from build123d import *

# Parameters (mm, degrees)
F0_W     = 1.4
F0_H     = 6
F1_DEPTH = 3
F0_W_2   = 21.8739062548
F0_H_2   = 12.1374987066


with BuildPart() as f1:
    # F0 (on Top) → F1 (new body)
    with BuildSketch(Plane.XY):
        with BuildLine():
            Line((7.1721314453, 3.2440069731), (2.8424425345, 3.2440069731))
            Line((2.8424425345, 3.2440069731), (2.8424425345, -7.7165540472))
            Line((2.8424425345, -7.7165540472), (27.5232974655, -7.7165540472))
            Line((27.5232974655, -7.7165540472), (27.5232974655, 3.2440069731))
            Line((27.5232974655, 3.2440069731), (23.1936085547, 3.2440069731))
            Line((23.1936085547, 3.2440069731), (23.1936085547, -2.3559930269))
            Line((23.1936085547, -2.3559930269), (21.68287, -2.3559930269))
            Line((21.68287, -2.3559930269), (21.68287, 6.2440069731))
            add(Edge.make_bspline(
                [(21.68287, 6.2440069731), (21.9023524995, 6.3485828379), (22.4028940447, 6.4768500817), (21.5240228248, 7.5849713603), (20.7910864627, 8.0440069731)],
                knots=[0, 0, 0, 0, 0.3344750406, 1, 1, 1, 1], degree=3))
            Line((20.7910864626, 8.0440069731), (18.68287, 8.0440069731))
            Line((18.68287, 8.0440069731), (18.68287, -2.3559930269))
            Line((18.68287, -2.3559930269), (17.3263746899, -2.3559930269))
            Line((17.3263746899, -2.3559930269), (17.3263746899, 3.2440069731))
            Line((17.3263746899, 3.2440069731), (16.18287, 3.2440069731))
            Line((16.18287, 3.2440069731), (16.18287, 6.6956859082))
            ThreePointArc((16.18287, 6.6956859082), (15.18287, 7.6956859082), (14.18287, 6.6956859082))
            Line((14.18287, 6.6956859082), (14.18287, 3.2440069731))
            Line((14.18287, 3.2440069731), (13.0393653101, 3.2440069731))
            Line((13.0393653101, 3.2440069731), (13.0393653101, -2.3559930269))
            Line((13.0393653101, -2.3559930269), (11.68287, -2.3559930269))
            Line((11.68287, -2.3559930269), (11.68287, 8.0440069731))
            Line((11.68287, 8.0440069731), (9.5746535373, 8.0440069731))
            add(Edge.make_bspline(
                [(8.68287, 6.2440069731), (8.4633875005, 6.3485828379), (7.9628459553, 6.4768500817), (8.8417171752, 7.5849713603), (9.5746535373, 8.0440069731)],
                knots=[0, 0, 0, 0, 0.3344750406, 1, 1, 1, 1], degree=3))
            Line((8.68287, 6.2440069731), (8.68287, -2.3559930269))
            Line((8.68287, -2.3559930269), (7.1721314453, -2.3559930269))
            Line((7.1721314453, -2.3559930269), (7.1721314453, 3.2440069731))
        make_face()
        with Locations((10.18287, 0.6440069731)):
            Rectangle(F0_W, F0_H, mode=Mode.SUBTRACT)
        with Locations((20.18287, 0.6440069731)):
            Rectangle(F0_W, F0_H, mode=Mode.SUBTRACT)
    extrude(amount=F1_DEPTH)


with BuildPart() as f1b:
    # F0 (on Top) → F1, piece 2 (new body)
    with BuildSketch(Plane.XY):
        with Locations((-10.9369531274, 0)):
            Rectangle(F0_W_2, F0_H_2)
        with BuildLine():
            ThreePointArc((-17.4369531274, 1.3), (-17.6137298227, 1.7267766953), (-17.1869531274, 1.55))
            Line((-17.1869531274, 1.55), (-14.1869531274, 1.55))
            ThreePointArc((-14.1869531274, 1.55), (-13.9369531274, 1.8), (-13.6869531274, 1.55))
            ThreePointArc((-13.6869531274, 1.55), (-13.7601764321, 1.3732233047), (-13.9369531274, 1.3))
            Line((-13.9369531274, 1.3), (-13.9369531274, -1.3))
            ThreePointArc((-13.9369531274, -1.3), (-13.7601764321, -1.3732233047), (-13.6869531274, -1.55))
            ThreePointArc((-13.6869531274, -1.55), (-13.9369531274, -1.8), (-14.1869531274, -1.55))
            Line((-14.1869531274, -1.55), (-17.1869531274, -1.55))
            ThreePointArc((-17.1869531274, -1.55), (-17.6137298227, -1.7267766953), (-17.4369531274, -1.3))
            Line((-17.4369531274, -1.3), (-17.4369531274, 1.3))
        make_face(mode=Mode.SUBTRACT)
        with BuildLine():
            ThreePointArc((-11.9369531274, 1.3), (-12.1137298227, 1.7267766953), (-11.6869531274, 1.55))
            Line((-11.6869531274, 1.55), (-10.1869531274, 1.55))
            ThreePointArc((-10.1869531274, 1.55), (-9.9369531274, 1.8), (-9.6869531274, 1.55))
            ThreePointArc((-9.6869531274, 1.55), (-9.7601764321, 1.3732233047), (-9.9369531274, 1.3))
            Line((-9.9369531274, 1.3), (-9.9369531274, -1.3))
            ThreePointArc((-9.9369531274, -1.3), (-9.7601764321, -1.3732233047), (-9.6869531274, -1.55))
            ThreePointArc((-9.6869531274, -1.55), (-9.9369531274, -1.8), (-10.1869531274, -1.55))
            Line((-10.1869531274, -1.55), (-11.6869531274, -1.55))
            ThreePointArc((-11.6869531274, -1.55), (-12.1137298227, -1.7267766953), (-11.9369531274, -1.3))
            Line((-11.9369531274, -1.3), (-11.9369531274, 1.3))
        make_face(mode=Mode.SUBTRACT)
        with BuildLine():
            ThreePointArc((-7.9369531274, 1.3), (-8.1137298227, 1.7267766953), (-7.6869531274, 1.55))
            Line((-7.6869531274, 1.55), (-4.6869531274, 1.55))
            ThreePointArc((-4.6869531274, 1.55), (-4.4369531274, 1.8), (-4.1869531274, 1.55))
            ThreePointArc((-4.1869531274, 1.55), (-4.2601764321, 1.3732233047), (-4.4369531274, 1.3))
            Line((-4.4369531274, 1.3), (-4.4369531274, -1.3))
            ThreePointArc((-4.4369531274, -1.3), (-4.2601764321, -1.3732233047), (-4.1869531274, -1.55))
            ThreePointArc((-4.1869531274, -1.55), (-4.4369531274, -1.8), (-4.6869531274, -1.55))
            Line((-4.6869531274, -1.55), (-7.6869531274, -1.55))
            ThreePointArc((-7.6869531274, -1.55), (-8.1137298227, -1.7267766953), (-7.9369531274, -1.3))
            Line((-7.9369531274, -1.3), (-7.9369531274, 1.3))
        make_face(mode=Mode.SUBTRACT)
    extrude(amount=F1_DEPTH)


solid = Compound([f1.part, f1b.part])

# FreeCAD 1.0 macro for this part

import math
import FreeCAD as App
import Part
import Sketcher

V = App.Vector


def add_polygon(sketch, points):
    """Adds a closed chain of lines whose ends are joined by coincident constraints."""
    first, n = sketch.GeometryCount, len(points)
    for a, b in zip(points, points[1:] + points[:1]):
        sketch.addGeometry(Part.LineSegment(App.Vector(*a, 0), App.Vector(*b, 0)), False)
    for i in range(n):
        sketch.addConstraint(Sketcher.Constraint("Coincident", first + i, 2, first + (i + 1) % n, 1))

doc = App.newDocument("Part")
body = doc.addObject("PartDesign::Body", "Body")

# Sketch on XY plane
sketch1 = body.newObject("Sketcher::SketchObject", "Sketch")
sketch1.AttachmentSupport = (doc.getObject("XY_Plane"), [""])
sketch1.MapMode = "FlatFace"
sketch1.addGeometry(Part.LineSegment(V(7.172131, 3.244007, 0), V(2.842443, 3.244007, 0)), False)  # 0
sketch1.addGeometry(Part.LineSegment(V(2.842443, 3.244007, 0), V(2.842443, -7.716554, 0)), False)  # 1
sketch1.addGeometry(Part.LineSegment(V(2.842443, -7.716554, 0), V(27.523297, -7.716554, 0)), False)  # 2
sketch1.addGeometry(Part.LineSegment(V(27.523297, -7.716554, 0), V(27.523297, 3.244007, 0)), False)  # 3
sketch1.addGeometry(Part.LineSegment(V(27.523297, 3.244007, 0), V(23.193609, 3.244007, 0)), False)  # 4
sketch1.addGeometry(Part.LineSegment(V(23.193609, 3.244007, 0), V(23.193609, -2.355993, 0)), False)  # 5
sketch1.addGeometry(Part.LineSegment(V(23.193609, -2.355993, 0), V(21.68287, -2.355993, 0)), False)  # 6
sketch1.addGeometry(Part.LineSegment(V(21.68287, -2.355993, 0), V(21.68287, 6.244007, 0)), False)  # 7
sketch1.addGeometry(Part.BSplineCurve([V(21.68287, 6.244007, 0), V(21.902352, 6.348583, 0), V(22.402894, 6.47685, 0), V(21.524023, 7.584971, 0), V(20.791086, 8.044007, 0)], [4, 1, 4], [0, 0.334475041, 1], False, 3, [1, 1, 1, 1, 1], False), False)  # 8
sketch1.addGeometry(Part.LineSegment(V(20.791086, 8.044007, 0), V(18.68287, 8.044007, 0)), False)  # 9
sketch1.addGeometry(Part.LineSegment(V(18.68287, 8.044007, 0), V(18.68287, -2.355993, 0)), False)  # 10
sketch1.addGeometry(Part.LineSegment(V(18.68287, -2.355993, 0), V(17.326375, -2.355993, 0)), False)  # 11
sketch1.addGeometry(Part.LineSegment(V(17.326375, -2.355993, 0), V(17.326375, 3.244007, 0)), False)  # 12
sketch1.addGeometry(Part.LineSegment(V(17.326375, 3.244007, 0), V(16.18287, 3.244007, 0)), False)  # 13
sketch1.addGeometry(Part.LineSegment(V(16.18287, 3.244007, 0), V(16.18287, 6.695686, 0)), False)  # 14
sketch1.addGeometry(Part.ArcOfCircle(Part.Circle(V(15.18287, 6.695686, 0), V(0, 0, 1), 1), math.radians(0), math.radians(180)), False)  # 15
sketch1.addGeometry(Part.LineSegment(V(14.18287, 6.695686, 0), V(14.18287, 3.244007, 0)), False)  # 16
sketch1.addGeometry(Part.LineSegment(V(14.18287, 3.244007, 0), V(13.039365, 3.244007, 0)), False)  # 17
sketch1.addGeometry(Part.LineSegment(V(13.039365, 3.244007, 0), V(13.039365, -2.355993, 0)), False)  # 18
sketch1.addGeometry(Part.LineSegment(V(13.039365, -2.355993, 0), V(11.68287, -2.355993, 0)), False)  # 19
sketch1.addGeometry(Part.LineSegment(V(11.68287, -2.355993, 0), V(11.68287, 8.044007, 0)), False)  # 20
sketch1.addGeometry(Part.LineSegment(V(11.68287, 8.044007, 0), V(9.574654, 8.044007, 0)), False)  # 21
sketch1.addGeometry(Part.BSplineCurve([V(8.68287, 6.244007, 0), V(8.463387, 6.348583, 0), V(7.962846, 6.47685, 0), V(8.841717, 7.584971, 0), V(9.574654, 8.044007, 0)], [4, 1, 4], [0, 0.334475041, 1], False, 3, [1, 1, 1, 1, 1], False), False)  # 22
sketch1.addGeometry(Part.LineSegment(V(8.68287, 6.244007, 0), V(8.68287, -2.355993, 0)), False)  # 23
sketch1.addGeometry(Part.LineSegment(V(8.68287, -2.355993, 0), V(7.172131, -2.355993, 0)), False)  # 24
sketch1.addGeometry(Part.LineSegment(V(7.172131, -2.355993, 0), V(7.172131, 3.244007, 0)), False)  # 25
add_polygon(sketch1, [(10.88287, -2.355993), (9.48287, -2.355993), (9.48287, 3.644007), (10.88287, 3.644007)])  # lines 26-29
add_polygon(sketch1, [(20.88287, -2.355993), (19.48287, -2.355993), (19.48287, 3.644007), (20.88287, 3.644007)])  # lines 30-33
sketch1.addConstraint([
    Sketcher.Constraint("Block", 8),
    Sketcher.Constraint("Block", 22),
    Sketcher.Constraint("Coincident", 0, 2, 1, 1),
    Sketcher.Constraint("Coincident", 1, 2, 2, 1),
    Sketcher.Constraint("Coincident", 2, 2, 3, 1),
    Sketcher.Constraint("Coincident", 3, 2, 4, 1),
    Sketcher.Constraint("Coincident", 4, 2, 5, 1),
    Sketcher.Constraint("Coincident", 5, 2, 6, 1),
    Sketcher.Constraint("Coincident", 6, 2, 7, 1),
    Sketcher.Constraint("Coincident", 7, 2, 8, 1),
    Sketcher.Constraint("Coincident", 8, 2, 9, 1),
    Sketcher.Constraint("Coincident", 9, 2, 10, 1),
    Sketcher.Constraint("Coincident", 10, 2, 11, 1),
    Sketcher.Constraint("Coincident", 11, 2, 12, 1),
    Sketcher.Constraint("Coincident", 12, 2, 13, 1),
    Sketcher.Constraint("Coincident", 13, 2, 14, 1),
    Sketcher.Constraint("Coincident", 14, 2, 15, 1),
    Sketcher.Constraint("Coincident", 15, 2, 16, 1),
    Sketcher.Constraint("Coincident", 16, 2, 17, 1),
    Sketcher.Constraint("Coincident", 17, 2, 18, 1),
    Sketcher.Constraint("Coincident", 18, 2, 19, 1),
    Sketcher.Constraint("Coincident", 19, 2, 20, 1),
    Sketcher.Constraint("Coincident", 20, 2, 21, 1),
    Sketcher.Constraint("Coincident", 21, 2, 22, 2),
    Sketcher.Constraint("Coincident", 22, 1, 23, 1),
    Sketcher.Constraint("Coincident", 23, 2, 24, 1),
    Sketcher.Constraint("Coincident", 24, 2, 25, 1),
    Sketcher.Constraint("Coincident", 25, 2, 0, 1),
    Sketcher.Constraint("Horizontal", 0),
    Sketcher.Constraint("Vertical", 1),
    Sketcher.Constraint("Horizontal", 2),
    Sketcher.Constraint("Vertical", 3),
    Sketcher.Constraint("Horizontal", 4),
    Sketcher.Constraint("Vertical", 5),
    Sketcher.Constraint("Horizontal", 6),
    Sketcher.Constraint("Vertical", 7),
    Sketcher.Constraint("Horizontal", 9),
    Sketcher.Constraint("Vertical", 10),
    Sketcher.Constraint("Horizontal", 11),
    Sketcher.Constraint("Vertical", 12),
    Sketcher.Constraint("Horizontal", 13),
    Sketcher.Constraint("Vertical", 14),
    Sketcher.Constraint("Vertical", 16),
    Sketcher.Constraint("Horizontal", 17),
    Sketcher.Constraint("Vertical", 18),
    Sketcher.Constraint("Horizontal", 19),
    Sketcher.Constraint("Vertical", 20),
    Sketcher.Constraint("Horizontal", 21),
    Sketcher.Constraint("Vertical", 23),
    Sketcher.Constraint("Horizontal", 24),
    Sketcher.Constraint("Vertical", 25),
    Sketcher.Constraint("Horizontal", 26),
    Sketcher.Constraint("Vertical", 27),
    Sketcher.Constraint("Horizontal", 28),
    Sketcher.Constraint("Vertical", 29),
    Sketcher.Constraint("Horizontal", 30),
    Sketcher.Constraint("Vertical", 31),
    Sketcher.Constraint("Horizontal", 32),
    Sketcher.Constraint("Vertical", 33),
    Sketcher.Constraint("Radius", 15, 1.0),
    Sketcher.Constraint("DistanceY", 27, 1, 27, 2, 6.0),
    Sketcher.Constraint("DistanceY", 31, 1, 31, 2, 6.0),
    Sketcher.Constraint("DistanceX", 26, 2, 26, 1, 1.4),
    Sketcher.Constraint("DistanceX", 30, 2, 30, 1, 1.4),
    Sketcher.Constraint("DistanceY", 5, 2, 5, 1, 5.6),
    Sketcher.Constraint("DistanceY", 7, 1, 7, 2, 8.6),
    Sketcher.Constraint("DistanceY", 10, 2, 10, 1, 10.4),
    Sketcher.Constraint("DistanceY", 12, 1, 12, 2, 5.6),
    Sketcher.Constraint("DistanceY", 18, 2, 18, 1, 5.6),
    Sketcher.Constraint("DistanceY", 20, 1, 20, 2, 10.4),
    Sketcher.Constraint("DistanceY", 23, 2, 23, 1, 8.6),
    Sketcher.Constraint("DistanceY", 25, 1, 25, 2, 5.6),
    Sketcher.Constraint("DistanceX", 9, 2, 7, 2, 3.0),
    Sketcher.Constraint("DistanceX", 19, 2, 10, 2, 7.0),
    Sketcher.Constraint("DistanceX", 15, 3, 6, 2, 6.5),
    Sketcher.Constraint("DistanceX", 23, 2, 26, 2, 0.8),
    Sketcher.Constraint("DistanceY", 26, 2, 25, 2, 5.6),
    Sketcher.Constraint("DistanceX", 10, 2, 30, 2, 0.8),
    Sketcher.Constraint("DistanceY", 30, 2, 12, 2, 5.6),
    Sketcher.Constraint("DistanceX", 0, 2, 0, 1, 4.329689),
    Sketcher.Constraint("DistanceX", 4, 2, 4, 1, 4.329689),
    Sketcher.Constraint("DistanceX", 6, 2, 6, 1, 1.510739),
    Sketcher.Constraint("DistanceX", 24, 2, 24, 1, 1.510739),
    Sketcher.Constraint("DistanceY", 1, 2, 1, 1, 10.960561),
    Sketcher.Constraint("DistanceY", 14, 1, 14, 2, 3.451679),
    Sketcher.Constraint("DistanceY", 16, 2, 16, 1, 3.451679),
    Sketcher.Constraint("DistanceX", 11, 2, 11, 1, 1.356495),
    Sketcher.Constraint("DistanceX", 17, 2, 17, 1, 1.143505),
    Sketcher.Constraint("DistanceY", 0, 2, 15, 3, 3.451679),
])
pad1 = body.newObject("PartDesign::Pad", "Pad")
pad1.Profile = sketch1
pad1.Length = 3
body2 = doc.addObject("PartDesign::Body", "Body001")

# Sketch on XY plane
sketch2 = body2.newObject("Sketcher::SketchObject", "Sketch001")
sketch2.AttachmentSupport = (doc.getObject("XY_Plane001"), [""])
sketch2.MapMode = "FlatFace"
add_polygon(sketch2, [(-21.873906, 6.068749), (-21.873906, -6.068749), (0, -6.068749), (0, 6.068749)])  # lines 0-3
sketch2.addGeometry(Part.LineSegment(V(-17.436953, -1.3, 0), V(-17.436953, 1.3, 0)), False)  # 4
sketch2.addGeometry(Part.ArcOfCircle(Part.Circle(V(-17.436953, 1.55, 0), V(0, 0, 1), 0.25), math.radians(0), math.radians(270)), False)  # 5
sketch2.addGeometry(Part.LineSegment(V(-17.186953, 1.55, 0), V(-14.186953, 1.55, 0)), False)  # 6
sketch2.addGeometry(Part.ArcOfCircle(Part.Circle(V(-13.936953, 1.55, 0), V(0, 0, 1), 0.25), math.radians(0), math.radians(180)), False)  # 7
sketch2.addGeometry(Part.ArcOfCircle(Part.Circle(V(-13.936953, 1.55, 0), V(0, 0, 1), 0.25), math.radians(-90), math.radians(0)), False)  # 8
sketch2.addGeometry(Part.LineSegment(V(-13.936953, 1.3, 0), V(-13.936953, -1.3, 0)), False)  # 9
sketch2.addGeometry(Part.ArcOfCircle(Part.Circle(V(-13.936953, -1.55, 0), V(0, 0, 1), 0.25), math.radians(0), math.radians(90)), False)  # 10
sketch2.addGeometry(Part.ArcOfCircle(Part.Circle(V(-13.936953, -1.55, 0), V(0, 0, 1), 0.25), math.radians(180), math.radians(360)), False)  # 11
sketch2.addGeometry(Part.LineSegment(V(-14.186953, -1.55, 0), V(-17.186953, -1.55, 0)), False)  # 12
sketch2.addGeometry(Part.ArcOfCircle(Part.Circle(V(-17.436953, -1.55, 0), V(0, 0, 1), 0.25), math.radians(90), math.radians(360)), False)  # 13
sketch2.addGeometry(Part.LineSegment(V(-11.936953, -1.3, 0), V(-11.936953, 1.3, 0)), False)  # 14
sketch2.addGeometry(Part.ArcOfCircle(Part.Circle(V(-11.936953, 1.55, 0), V(0, 0, 1), 0.25), math.radians(0), math.radians(270)), False)  # 15
sketch2.addGeometry(Part.LineSegment(V(-11.686953, 1.55, 0), V(-10.186953, 1.55, 0)), False)  # 16
sketch2.addGeometry(Part.ArcOfCircle(Part.Circle(V(-9.936953, 1.55, 0), V(0, 0, 1), 0.25), math.radians(0), math.radians(180)), False)  # 17
sketch2.addGeometry(Part.ArcOfCircle(Part.Circle(V(-9.936953, 1.55, 0), V(0, 0, 1), 0.25), math.radians(-90), math.radians(0)), False)  # 18
sketch2.addGeometry(Part.LineSegment(V(-9.936953, 1.3, 0), V(-9.936953, -1.3, 0)), False)  # 19
sketch2.addGeometry(Part.ArcOfCircle(Part.Circle(V(-9.936953, -1.55, 0), V(0, 0, 1), 0.25), math.radians(0), math.radians(90)), False)  # 20
sketch2.addGeometry(Part.ArcOfCircle(Part.Circle(V(-9.936953, -1.55, 0), V(0, 0, 1), 0.25), math.radians(180), math.radians(360)), False)  # 21
sketch2.addGeometry(Part.LineSegment(V(-10.186953, -1.55, 0), V(-11.686953, -1.55, 0)), False)  # 22
sketch2.addGeometry(Part.ArcOfCircle(Part.Circle(V(-11.936953, -1.55, 0), V(0, 0, 1), 0.25), math.radians(90), math.radians(360)), False)  # 23
sketch2.addGeometry(Part.LineSegment(V(-7.936953, -1.3, 0), V(-7.936953, 1.3, 0)), False)  # 24
sketch2.addGeometry(Part.ArcOfCircle(Part.Circle(V(-7.936953, 1.55, 0), V(0, 0, 1), 0.25), math.radians(0), math.radians(270)), False)  # 25
sketch2.addGeometry(Part.LineSegment(V(-7.686953, 1.55, 0), V(-4.686953, 1.55, 0)), False)  # 26
sketch2.addGeometry(Part.ArcOfCircle(Part.Circle(V(-4.436953, 1.55, 0), V(0, 0, 1), 0.25), math.radians(0), math.radians(180)), False)  # 27
sketch2.addGeometry(Part.ArcOfCircle(Part.Circle(V(-4.436953, 1.55, 0), V(0, 0, 1), 0.25), math.radians(-90), math.radians(0)), False)  # 28
sketch2.addGeometry(Part.LineSegment(V(-4.436953, 1.3, 0), V(-4.436953, -1.3, 0)), False)  # 29
sketch2.addGeometry(Part.ArcOfCircle(Part.Circle(V(-4.436953, -1.55, 0), V(0, 0, 1), 0.25), math.radians(0), math.radians(90)), False)  # 30
sketch2.addGeometry(Part.ArcOfCircle(Part.Circle(V(-4.436953, -1.55, 0), V(0, 0, 1), 0.25), math.radians(180), math.radians(360)), False)  # 31
sketch2.addGeometry(Part.LineSegment(V(-4.686953, -1.55, 0), V(-7.686953, -1.55, 0)), False)  # 32
sketch2.addGeometry(Part.ArcOfCircle(Part.Circle(V(-7.936953, -1.55, 0), V(0, 0, 1), 0.25), math.radians(90), math.radians(360)), False)  # 33
sketch2.addConstraint([
    Sketcher.Constraint("Coincident", 4, 2, 5, 2),
    Sketcher.Constraint("Coincident", 5, 1, 6, 1),
    Sketcher.Constraint("Coincident", 6, 2, 7, 2),
    Sketcher.Constraint("Tangent", 7, 1, 8, 2),
    Sketcher.Constraint("Coincident", 8, 1, 9, 1),
    Sketcher.Constraint("Coincident", 9, 2, 10, 2),
    Sketcher.Constraint("Tangent", 10, 1, 11, 2),
    Sketcher.Constraint("Coincident", 11, 1, 12, 1),
    Sketcher.Constraint("Coincident", 12, 2, 13, 2),
    Sketcher.Constraint("Coincident", 13, 1, 4, 1),
    Sketcher.Constraint("Coincident", 14, 2, 15, 2),
    Sketcher.Constraint("Coincident", 15, 1, 16, 1),
    Sketcher.Constraint("Coincident", 16, 2, 17, 2),
    Sketcher.Constraint("Tangent", 17, 1, 18, 2),
    Sketcher.Constraint("Coincident", 18, 1, 19, 1),
    Sketcher.Constraint("Coincident", 19, 2, 20, 2),
    Sketcher.Constraint("Tangent", 20, 1, 21, 2),
    Sketcher.Constraint("Coincident", 21, 1, 22, 1),
    Sketcher.Constraint("Coincident", 22, 2, 23, 2),
    Sketcher.Constraint("Coincident", 23, 1, 14, 1),
    Sketcher.Constraint("Coincident", 24, 2, 25, 2),
    Sketcher.Constraint("Coincident", 25, 1, 26, 1),
    Sketcher.Constraint("Coincident", 26, 2, 27, 2),
    Sketcher.Constraint("Tangent", 27, 1, 28, 2),
    Sketcher.Constraint("Coincident", 28, 1, 29, 1),
    Sketcher.Constraint("Coincident", 29, 2, 30, 2),
    Sketcher.Constraint("Tangent", 30, 1, 31, 2),
    Sketcher.Constraint("Coincident", 31, 1, 32, 1),
    Sketcher.Constraint("Coincident", 32, 2, 33, 2),
    Sketcher.Constraint("Coincident", 33, 1, 24, 1),
    Sketcher.Constraint("Vertical", 0),
    Sketcher.Constraint("Horizontal", 1),
    Sketcher.Constraint("Vertical", 2),
    Sketcher.Constraint("Horizontal", 3),
    Sketcher.Constraint("Vertical", 4),
    Sketcher.Constraint("Horizontal", 6),
    Sketcher.Constraint("Vertical", 9),
    Sketcher.Constraint("Horizontal", 12),
    Sketcher.Constraint("Vertical", 14),
    Sketcher.Constraint("Horizontal", 16),
    Sketcher.Constraint("Vertical", 19),
    Sketcher.Constraint("Horizontal", 22),
    Sketcher.Constraint("Vertical", 24),
    Sketcher.Constraint("Horizontal", 26),
    Sketcher.Constraint("Vertical", 29),
    Sketcher.Constraint("Horizontal", 32),
    Sketcher.Constraint("Equal", 5, 7),
    Sketcher.Constraint("Equal", 7, 8),
    Sketcher.Constraint("Equal", 8, 10),
    Sketcher.Constraint("Equal", 10, 11),
    Sketcher.Constraint("Equal", 11, 13),
    Sketcher.Constraint("Equal", 13, 15),
    Sketcher.Constraint("Equal", 15, 17),
    Sketcher.Constraint("Equal", 17, 18),
    Sketcher.Constraint("Equal", 18, 20),
    Sketcher.Constraint("Equal", 20, 21),
    Sketcher.Constraint("Equal", 21, 23),
    Sketcher.Constraint("Equal", 23, 25),
    Sketcher.Constraint("Equal", 25, 27),
    Sketcher.Constraint("Equal", 27, 28),
    Sketcher.Constraint("Equal", 28, 30),
    Sketcher.Constraint("Equal", 30, 31),
    Sketcher.Constraint("Equal", 31, 33),
    Sketcher.Constraint("Symmetric", 1, 2, 2, 2, -1, 1),
    Sketcher.Constraint("Symmetric", 7, 3, 10, 3, -1),
    Sketcher.Constraint("Symmetric", 5, 3, 13, 3, -1),
    Sketcher.Constraint("Symmetric", 17, 3, 20, 3, -1),
    Sketcher.Constraint("Symmetric", 15, 3, 23, 3, -1),
    Sketcher.Constraint("Symmetric", 27, 3, 30, 3, -1),
    Sketcher.Constraint("Symmetric", 25, 3, 33, 3, -1),
    Sketcher.Constraint("Horizontal", 5, 3, 7, 3),
    Sketcher.Constraint("Horizontal", 8, 3, 15, 3),
    Sketcher.Constraint("Horizontal", 15, 3, 17, 3),
    Sketcher.Constraint("Horizontal", 18, 3, 25, 3),
    Sketcher.Constraint("Horizontal", 25, 3, 27, 3),
    Sketcher.Constraint("Horizontal", 28, 3, 5, 1),
    Sketcher.Constraint("Horizontal", 6, 2, 7, 1),
    Sketcher.Constraint("Horizontal", 33, 3, 10, 1),
    Sketcher.Constraint("Horizontal", 10, 1, 11, 1),
    Sketcher.Constraint("Horizontal", 7, 1, 15, 1),
    Sketcher.Constraint("Horizontal", 16, 2, 17, 1),
    Sketcher.Constraint("Horizontal", 12, 2, 20, 1),
    Sketcher.Constraint("Horizontal", 20, 1, 21, 1),
    Sketcher.Constraint("Horizontal", 17, 1, 25, 1),
    Sketcher.Constraint("Horizontal", 26, 2, 27, 1),
    Sketcher.Constraint("Horizontal", 22, 2, 30, 1),
    Sketcher.Constraint("Horizontal", 30, 1, 31, 1),
    Sketcher.Constraint("Vertical", 13, 3, 4, 2),
    Sketcher.Constraint("Vertical", 11, 3, 8, 1),
    Sketcher.Constraint("Vertical", 23, 3, 14, 2),
    Sketcher.Constraint("Vertical", 21, 3, 18, 1),
    Sketcher.Constraint("Vertical", 33, 3, 24, 2),
    Sketcher.Constraint("Vertical", 31, 3, 28, 1),
    Sketcher.Constraint("Equal", 12, 26),
    Sketcher.Constraint("DistanceX", 6, 1, 6, 2, 3.0),
    Sketcher.Constraint("Radius", 5, 0.25),
    Sketcher.Constraint("DistanceX", 16, 1, 16, 2, 1.5),
    Sketcher.Constraint("DistanceY", 4, 1, 4, 2, 2.6),
    Sketcher.Constraint("DistanceX", 7, 3, 15, 3, 2.0),
    Sketcher.Constraint("DistanceX", 17, 3, 25, 3, 2.0),
    Sketcher.Constraint("DistanceY", 0, 2, 0, 1, 12.137499),
    Sketcher.Constraint("DistanceX", 1, 1, 1, 2, 21.873906),
    Sketcher.Constraint("DistanceX", 5, 3, -1, 1, 17.436953),
])
pad2 = body2.newObject("PartDesign::Pad", "Pad001")
pad2.Profile = sketch2
pad2.Length = 3

doc.recompute()
